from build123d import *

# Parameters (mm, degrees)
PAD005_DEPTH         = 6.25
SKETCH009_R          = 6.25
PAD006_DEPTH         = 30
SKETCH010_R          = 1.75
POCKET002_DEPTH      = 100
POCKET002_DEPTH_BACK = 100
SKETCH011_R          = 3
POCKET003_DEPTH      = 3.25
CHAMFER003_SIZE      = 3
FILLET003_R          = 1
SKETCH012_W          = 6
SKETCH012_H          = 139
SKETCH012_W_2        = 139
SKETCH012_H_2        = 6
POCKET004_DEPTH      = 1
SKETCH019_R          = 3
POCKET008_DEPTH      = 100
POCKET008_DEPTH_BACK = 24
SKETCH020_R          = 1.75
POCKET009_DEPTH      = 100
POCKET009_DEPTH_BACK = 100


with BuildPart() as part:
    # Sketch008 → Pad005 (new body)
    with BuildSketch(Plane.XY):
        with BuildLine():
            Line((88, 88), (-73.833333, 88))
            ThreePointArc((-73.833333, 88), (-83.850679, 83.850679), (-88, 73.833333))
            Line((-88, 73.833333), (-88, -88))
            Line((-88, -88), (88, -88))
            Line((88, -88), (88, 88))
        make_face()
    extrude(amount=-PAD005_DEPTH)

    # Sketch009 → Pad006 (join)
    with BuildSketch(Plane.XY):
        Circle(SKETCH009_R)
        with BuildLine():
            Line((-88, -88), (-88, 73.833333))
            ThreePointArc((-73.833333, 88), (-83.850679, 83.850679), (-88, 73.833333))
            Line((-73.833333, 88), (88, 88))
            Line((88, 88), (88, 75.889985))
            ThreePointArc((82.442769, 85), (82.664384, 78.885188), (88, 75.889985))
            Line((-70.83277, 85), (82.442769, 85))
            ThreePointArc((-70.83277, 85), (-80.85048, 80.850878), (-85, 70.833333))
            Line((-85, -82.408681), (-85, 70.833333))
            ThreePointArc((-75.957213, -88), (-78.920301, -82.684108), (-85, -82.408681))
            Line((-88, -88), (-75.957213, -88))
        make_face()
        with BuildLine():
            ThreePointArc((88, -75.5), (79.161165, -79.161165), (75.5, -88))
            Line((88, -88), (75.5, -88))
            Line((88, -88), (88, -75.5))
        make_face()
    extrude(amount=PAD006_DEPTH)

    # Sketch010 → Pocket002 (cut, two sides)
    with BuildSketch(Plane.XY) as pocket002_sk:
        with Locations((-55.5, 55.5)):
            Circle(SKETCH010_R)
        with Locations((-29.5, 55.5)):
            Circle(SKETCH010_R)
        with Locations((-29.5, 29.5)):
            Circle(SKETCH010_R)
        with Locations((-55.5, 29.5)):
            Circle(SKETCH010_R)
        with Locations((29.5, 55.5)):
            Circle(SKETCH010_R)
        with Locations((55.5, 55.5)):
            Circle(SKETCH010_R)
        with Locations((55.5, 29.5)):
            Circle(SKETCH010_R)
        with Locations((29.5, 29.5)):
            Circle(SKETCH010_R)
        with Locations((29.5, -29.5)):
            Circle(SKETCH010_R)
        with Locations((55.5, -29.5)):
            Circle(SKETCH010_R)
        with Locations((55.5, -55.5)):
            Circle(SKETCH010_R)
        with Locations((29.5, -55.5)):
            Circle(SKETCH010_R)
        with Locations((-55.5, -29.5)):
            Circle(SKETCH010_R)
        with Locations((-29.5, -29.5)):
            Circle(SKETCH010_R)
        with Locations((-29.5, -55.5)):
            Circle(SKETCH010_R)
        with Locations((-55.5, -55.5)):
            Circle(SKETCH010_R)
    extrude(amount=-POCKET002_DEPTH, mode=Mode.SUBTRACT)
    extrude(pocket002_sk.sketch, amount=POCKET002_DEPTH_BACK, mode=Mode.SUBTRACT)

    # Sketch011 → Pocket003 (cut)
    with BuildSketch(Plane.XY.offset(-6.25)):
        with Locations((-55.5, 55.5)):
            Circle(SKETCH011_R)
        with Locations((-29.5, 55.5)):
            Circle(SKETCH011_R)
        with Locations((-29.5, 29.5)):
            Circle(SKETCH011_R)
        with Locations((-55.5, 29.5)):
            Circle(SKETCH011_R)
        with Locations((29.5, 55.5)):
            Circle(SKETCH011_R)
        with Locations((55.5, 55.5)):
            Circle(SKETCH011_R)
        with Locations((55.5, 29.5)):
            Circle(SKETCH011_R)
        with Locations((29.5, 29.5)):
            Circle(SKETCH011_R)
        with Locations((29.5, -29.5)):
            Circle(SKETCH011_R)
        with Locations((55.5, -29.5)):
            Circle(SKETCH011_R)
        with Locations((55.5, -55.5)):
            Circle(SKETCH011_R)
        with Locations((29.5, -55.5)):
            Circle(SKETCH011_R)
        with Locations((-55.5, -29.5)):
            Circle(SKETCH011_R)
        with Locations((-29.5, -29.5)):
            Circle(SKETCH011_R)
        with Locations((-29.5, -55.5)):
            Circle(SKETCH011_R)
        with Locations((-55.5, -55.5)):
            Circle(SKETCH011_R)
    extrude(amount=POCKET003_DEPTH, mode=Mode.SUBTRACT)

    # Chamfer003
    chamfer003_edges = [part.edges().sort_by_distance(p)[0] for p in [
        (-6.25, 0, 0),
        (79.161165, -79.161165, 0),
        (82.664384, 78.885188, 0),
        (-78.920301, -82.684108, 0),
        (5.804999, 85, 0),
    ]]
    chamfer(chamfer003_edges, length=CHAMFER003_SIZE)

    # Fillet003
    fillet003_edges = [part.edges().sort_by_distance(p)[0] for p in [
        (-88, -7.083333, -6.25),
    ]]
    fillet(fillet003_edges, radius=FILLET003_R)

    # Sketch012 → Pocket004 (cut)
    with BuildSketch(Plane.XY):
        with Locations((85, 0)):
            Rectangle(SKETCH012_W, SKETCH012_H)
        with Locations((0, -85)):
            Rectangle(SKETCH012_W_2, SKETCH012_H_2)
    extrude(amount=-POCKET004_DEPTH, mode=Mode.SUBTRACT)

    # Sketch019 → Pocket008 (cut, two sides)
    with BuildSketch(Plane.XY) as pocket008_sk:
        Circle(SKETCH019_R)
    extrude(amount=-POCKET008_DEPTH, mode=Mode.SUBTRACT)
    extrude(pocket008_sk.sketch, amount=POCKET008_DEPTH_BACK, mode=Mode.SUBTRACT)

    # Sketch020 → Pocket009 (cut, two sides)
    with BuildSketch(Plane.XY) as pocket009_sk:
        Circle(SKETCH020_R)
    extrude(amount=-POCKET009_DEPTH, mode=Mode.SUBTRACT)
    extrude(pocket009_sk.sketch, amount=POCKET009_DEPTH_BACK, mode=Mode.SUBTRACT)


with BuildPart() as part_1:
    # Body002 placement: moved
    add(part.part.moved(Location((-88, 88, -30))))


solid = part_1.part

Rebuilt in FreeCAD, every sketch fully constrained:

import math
import FreeCAD as App
import Part
import Sketcher
from FreeCAD import Vector
Q = App.Units.Quantity


def edges_at(feature, points):
    """Names of the edges that pass closest to the given points."""
    edges = feature.Shape.Edges
    near = lambda p: min(range(len(edges)), key=lambda i: edges[i].distToShape(Part.Vertex(*p))[0])
    return sorted({f"Edge{near(p) + 1}" for p in points})


def add_polygon(sketch, points):
    """Adds a closed chain of lines whose ends are joined by coincident constraints."""
    first, n = sketch.GeometryCount, len(points)
    for a, b in zip(points, points[1:] + points[:1]):
        sketch.addGeometry(Part.LineSegment(App.Vector(*a, 0), App.Vector(*b, 0)), False)
    for i in range(n):
        sketch.addConstraint(Sketcher.Constraint("Coincident", first + i, 2, first + (i + 1) % n, 1))

doc = App.newDocument("Part")
body = doc.addObject("PartDesign::Body", "Body")

# Sketch on XY plane
sketch1 = body.newObject("Sketcher::SketchObject", "Sketch")
sketch1.AttachmentSupport = (doc.getObject("XY_Plane"), [""])
sketch1.MapMode = "FlatFace"
sketch1.addGeometry([
    Part.LineSegment(Vector(88, 88, 0), Vector(-74, 88, 0)),  # 0
    Part.ArcOfCircle(Part.Circle(Vector(-74, 74, 0), Vector(0, 0, 1), 14), math.radians(90), math.radians(180)),  # 1
    Part.LineSegment(Vector(-88, 74, 0), Vector(-88, -88, 0)),  # 2
    Part.LineSegment(Vector(-88, -88, 0), Vector(88, -88, 0)),  # 3
    Part.LineSegment(Vector(88, -88, 0), Vector(88, 88, 0)),  # 4
], False)
sketch1.addConstraint([
    Sketcher.Constraint("Tangent", 0, 2, 1, 1),
    Sketcher.Constraint("Tangent", 1, 2, 2, 1),
    Sketcher.Constraint("Coincident", 2, 2, 3, 1),
    Sketcher.Constraint("Coincident", 3, 2, 4, 1),
    Sketcher.Constraint("Coincident", 4, 2, 0, 1),
    Sketcher.Constraint("Horizontal", 0),
    Sketcher.Constraint("Vertical", 2),
    Sketcher.Constraint("Horizontal", 3),
    Sketcher.Constraint("Vertical", 4),
    Sketcher.Constraint("Symmetric", 2, 2, 4, 2, -1, 1),
    Sketcher.Constraint("Equal", 0, 2),
    Sketcher.Constraint("DistanceX", 3, 1, 3, 2, Q("176 mm")),
    Sketcher.Constraint("Radius", 1, Q("14.166668 mm")),
])
pad1 = body.newObject("PartDesign::Pad", "Pad")
pad1.Profile = sketch1
pad1.Length = 6.25
pad1.Reversed = True

# Sketch on XY plane
sketch2 = body.newObject("Sketcher::SketchObject", "Sketch001")
sketch2.AttachmentSupport = (doc.getObject("XY_Plane"), [""])
sketch2.MapMode = "FlatFace"
sketch2.addGeometry([
    Part.Circle(Vector(0, 0, 0), Vector(0, 0, 1), 6),  # 0
    Part.LineSegment(Vector(-88, 74, 0), Vector(-88, -88, 0)),  # 1
    Part.LineSegment(Vector(-88, -88, 0), Vector(-76, -88, 0)),  # 2
    Part.ArcOfCircle(Part.Circle(Vector(-82, -88, 0), Vector(0, 0, 1), 6), math.radians(0), math.radians(117)),  # 3
    Part.LineSegment(Vector(-85, -82, 0), Vector(-85, 71, 0)),  # 4
    Part.ArcOfCircle(Part.Circle(Vector(-71, 71, 0), Vector(0, 0, 1), 14), math.radians(90), math.radians(180)),  # 5
    Part.LineSegment(Vector(-71, 85, 0), Vector(82, 85, 0)),  # 6
    Part.ArcOfCircle(Part.Circle(Vector(88, 82, 0), Vector(0, 0, 1), 6), math.radians(153), math.radians(270)),  # 7
    Part.LineSegment(Vector(88, 76, 0), Vector(88, 88, 0)),  # 8
    Part.LineSegment(Vector(88, 88, 0), Vector(-74, 88, 0)),  # 9
    Part.ArcOfCircle(Part.Circle(Vector(-74, 74, 0), Vector(0, 0, 1), 14), math.radians(90), math.radians(180)),  # 10
    Part.ArcOfCircle(Part.Circle(Vector(88, -88, 0), Vector(0, 0, 1), 12), math.radians(90), math.radians(180)),  # 11
    Part.LineSegment(Vector(76, -88, 0), Vector(88, -88, 0)),  # 12
    Part.LineSegment(Vector(88, -88, 0), Vector(88, -76, 0)),  # 13
], False)
sketch2.addConstraint([
    Sketcher.Constraint("Coincident", 1, 2, 2, 1),
    Sketcher.Constraint("Coincident", 2, 2, 3, 1),
    Sketcher.Constraint("Coincident", 3, 2, 4, 1),
    Sketcher.Constraint("Tangent", 4, 2, 5, 2),
    Sketcher.Constraint("Coincident", 5, 1, 6, 1),
    Sketcher.Constraint("Coincident", 6, 2, 7, 1),
    Sketcher.Constraint("Coincident", 7, 2, 8, 1),
    Sketcher.Constraint("Coincident", 8, 2, 9, 1),
    Sketcher.Constraint("Tangent", 9, 2, 10, 1),
    Sketcher.Constraint("Tangent", 10, 2, 1, 1),
    Sketcher.Constraint("Coincident", 11, 2, 12, 1),
    Sketcher.Constraint("Coincident", 12, 2, 13, 1),
    Sketcher.Constraint("Coincident", 13, 2, 11, 1),
    Sketcher.Constraint("Vertical", 1),
    Sketcher.Constraint("Horizontal", 2),
    Sketcher.Constraint("Vertical", 4),
    Sketcher.Constraint("Horizontal", 6),
    Sketcher.Constraint("Vertical", 8),
    Sketcher.Constraint("Horizontal", 9),
    Sketcher.Constraint("Horizontal", 12),
    Sketcher.Constraint("Vertical", 13),
    Sketcher.Constraint("Coincident", 0, 3, -1, 1),
    Sketcher.Constraint("Coincident", 12, 2, 11, 3),
    Sketcher.Constraint("Equal", 0, 3),
    Sketcher.Constraint("Equal", 3, 7),
    Sketcher.Constraint("Equal", 5, 10),
    Sketcher.Constraint("Symmetric", 1, 2, 8, 2, -1, 1),
    Sketcher.Constraint("Symmetric", 1, 2, 12, 2, -2),
    Sketcher.Constraint("Horizontal", 3, 3, 11, 3),
    Sketcher.Constraint("Vertical", 7, 3, 11, 3),
    Sketcher.Constraint("Equal", 9, 1),
    Sketcher.Constraint("Diameter", 0, Q("12.5 mm")),
    Sketcher.Constraint("Radius", 11, Q("12.499999 mm")),
    Sketcher.Constraint("DistanceY", 3, 3, -1, 1, Q("88.000001 mm")),
    Sketcher.Constraint("DistanceX", 3, 2, -1, 1, Q("85 mm")),
    Sketcher.Constraint("DistanceY", -1, 1, 5, 1, Q("85 mm")),
    Sketcher.Constraint("Radius", 5, Q("14.166668 mm")),
    Sketcher.Constraint("DistanceX", 6, 1, 6, 2, Q("153.275539 mm")),
    Sketcher.Constraint("DistanceX", 5, 3, 6, 2, Q("153.276101 mm")),
    Sketcher.Constraint("DistanceX", 2, 1, 2, 2, Q("12.042787 mm")),
])
pad2 = body.newObject("PartDesign::Pad", "Pad001")
pad2.Profile = sketch2
pad2.Length = 30

# Sketch on XY plane
sketch3 = body.newObject("Sketcher::SketchObject", "Sketch002")
sketch3.AttachmentSupport = (doc.getObject("XY_Plane"), [""])
sketch3.MapMode = "FlatFace"
sketch3.addGeometry([
    Part.Circle(Vector(-55.5, 55.5, 0), Vector(0, 0, 1), 1.8),  # 0
    Part.Circle(Vector(-29.5, 55.5, 0), Vector(0, 0, 1), 1.8),  # 1
    Part.Circle(Vector(-29.5, 29.5, 0), Vector(0, 0, 1), 1.8),  # 2
    Part.Circle(Vector(-55.5, 29.5, 0), Vector(0, 0, 1), 1.8),  # 3
    Part.Circle(Vector(29.5, 55.5, 0), Vector(0, 0, 1), 1.8),  # 4
    Part.Circle(Vector(55.5, 55.5, 0), Vector(0, 0, 1), 1.8),  # 5
    Part.Circle(Vector(55.5, 29.5, 0), Vector(0, 0, 1), 1.8),  # 6
    Part.Circle(Vector(29.5, 29.5, 0), Vector(0, 0, 1), 1.8),  # 7
    Part.Circle(Vector(29.5, -29.5, 0), Vector(0, 0, 1), 1.8),  # 8
    Part.Circle(Vector(55.5, -29.5, 0), Vector(0, 0, 1), 1.8),  # 9
    Part.Circle(Vector(55.5, -55.5, 0), Vector(0, 0, 1), 1.8),  # 10
    Part.Circle(Vector(29.5, -55.5, 0), Vector(0, 0, 1), 1.8),  # 11
    Part.Circle(Vector(-55.5, -29.5, 0), Vector(0, 0, 1), 1.8),  # 12
    Part.Circle(Vector(-29.5, -29.5, 0), Vector(0, 0, 1), 1.8),  # 13
    Part.Circle(Vector(-29.5, -55.5, 0), Vector(0, 0, 1), 1.8),  # 14
    Part.Circle(Vector(-55.5, -55.5, 0), Vector(0, 0, 1), 1.8),  # 15
], False)
sketch3.addConstraint([
    Sketcher.Constraint("Equal", 0, 1),
    Sketcher.Constraint("Equal", 1, 2),
    Sketcher.Constraint("Equal", 2, 3),
    Sketcher.Constraint("Equal", 3, 4),
    Sketcher.Constraint("Equal", 4, 5),
    Sketcher.Constraint("Equal", 5, 6),
    Sketcher.Constraint("Equal", 6, 7),
    Sketcher.Constraint("Equal", 7, 8),
    Sketcher.Constraint("Equal", 8, 9),
    Sketcher.Constraint("Equal", 9, 10),
    Sketcher.Constraint("Equal", 10, 11),
    Sketcher.Constraint("Equal", 11, 12),
    Sketcher.Constraint("Equal", 12, 13),
    Sketcher.Constraint("Equal", 13, 14),
    Sketcher.Constraint("Equal", 14, 15),
    Sketcher.Constraint("Symmetric", 2, 3, 8, 3, -1, 1),
    Sketcher.Constraint("Symmetric", 3, 3, 9, 3, -1, 1),
    Sketcher.Constraint("Symmetric", 0, 3, 10, 3, -1, 1),
    Sketcher.Constraint("Symmetric", 1, 3, 11, 3, -1, 1),
    Sketcher.Constraint("Symmetric", 6, 3, 12, 3, -1, 1),
    Sketcher.Constraint("Symmetric", 7, 3, 13, 3, -1, 1),
    Sketcher.Constraint("Symmetric", 4, 3, 14, 3, -1, 1),
    Sketcher.Constraint("Symmetric", 5, 3, 15, 3, -1, 1),
    Sketcher.Constraint("Symmetric", 1, 3, 4, 3, -2),
    Sketcher.Constraint("Symmetric", 0, 3, 5, 3, -2),
    Sketcher.Constraint("Symmetric", 3, 3, 6, 3, -2),
    Sketcher.Constraint("Symmetric", 2, 3, 7, 3, -2),
    Sketcher.Constraint("Horizontal", 0, 3, 1, 3),
    Sketcher.Constraint("Horizontal", 2, 3, 3, 3),
    Sketcher.Constraint("Vertical", 1, 3, 2, 3),
    Sketcher.Constraint("Vertical", 0, 3, 3, 3),
    Sketcher.Constraint("Diameter", 0, Q("3.5 mm")),
    Sketcher.Constraint("DistanceX", 0, 3, 1, 3, Q("26 mm")),
    Sketcher.Constraint("DistanceY", 2, 3, 1, 3, Q("26 mm")),
    Sketcher.Constraint("DistanceX", 1, 3, 4, 3, Q("59 mm")),
    Sketcher.Constraint("DistanceY", 8, 3, 7, 3, Q("59 mm")),
])
pocket1 = body.newObject("PartDesign::Pocket", "Pocket")
pocket1.Profile = sketch3
pocket1.Type = "ThroughAll"
pocket1.Midplane = True

# Sketch on XY plane
sketch4 = body.newObject("Sketcher::SketchObject", "Sketch003")
sketch4.AttachmentSupport = (doc.getObject("XY_Plane"), [""])
sketch4.MapMode = "FlatFace"
sketch4.AttachmentOffset = App.Placement(Vector(0, 0, -6.25), App.Rotation())
sketch4.addGeometry([
    Part.Circle(Vector(-55.5, 55.5, 0), Vector(0, 0, 1), 3),  # 0
    Part.Circle(Vector(-29.5, 55.5, 0), Vector(0, 0, 1), 3),  # 1
    Part.Circle(Vector(-29.5, 29.5, 0), Vector(0, 0, 1), 3),  # 2
    Part.Circle(Vector(-55.5, 29.5, 0), Vector(0, 0, 1), 3),  # 3
    Part.Circle(Vector(29.5, 55.5, 0), Vector(0, 0, 1), 3),  # 4
    Part.Circle(Vector(55.5, 55.5, 0), Vector(0, 0, 1), 3),  # 5
    Part.Circle(Vector(55.5, 29.5, 0), Vector(0, 0, 1), 3),  # 6
    Part.Circle(Vector(29.5, 29.5, 0), Vector(0, 0, 1), 3),  # 7
    Part.Circle(Vector(29.5, -29.5, 0), Vector(0, 0, 1), 3),  # 8
    Part.Circle(Vector(55.5, -29.5, 0), Vector(0, 0, 1), 3),  # 9
    Part.Circle(Vector(55.5, -55.5, 0), Vector(0, 0, 1), 3),  # 10
    Part.Circle(Vector(29.5, -55.5, 0), Vector(0, 0, 1), 3),  # 11
    Part.Circle(Vector(-55.5, -29.5, 0), Vector(0, 0, 1), 3),  # 12
    Part.Circle(Vector(-29.5, -29.5, 0), Vector(0, 0, 1), 3),  # 13
    Part.Circle(Vector(-29.5, -55.5, 0), Vector(0, 0, 1), 3),  # 14
    Part.Circle(Vector(-55.5, -55.5, 0), Vector(0, 0, 1), 3),  # 15
], False)
sketch4.addConstraint([
    Sketcher.Constraint("Equal", 0, 1),
    Sketcher.Constraint("Equal", 1, 2),
    Sketcher.Constraint("Equal", 2, 3),
    Sketcher.Constraint("Equal", 3, 4),
    Sketcher.Constraint("Equal", 4, 5),
    Sketcher.Constraint("Equal", 5, 6),
    Sketcher.Constraint("Equal", 6, 7),
    Sketcher.Constraint("Equal", 7, 8),
    Sketcher.Constraint("Equal", 8, 9),
    Sketcher.Constraint("Equal", 9, 10),
    Sketcher.Constraint("Equal", 10, 11),
    Sketcher.Constraint("Equal", 11, 12),
    Sketcher.Constraint("Equal", 12, 13),
    Sketcher.Constraint("Equal", 13, 14),
    Sketcher.Constraint("Equal", 14, 15),
    Sketcher.Constraint("Symmetric", 2, 3, 8, 3, -1, 1),
    Sketcher.Constraint("Symmetric", 3, 3, 9, 3, -1, 1),
    Sketcher.Constraint("Symmetric", 0, 3, 10, 3, -1, 1),
    Sketcher.Constraint("Symmetric", 1, 3, 11, 3, -1, 1),
    Sketcher.Constraint("Symmetric", 6, 3, 12, 3, -1, 1),
    Sketcher.Constraint("Symmetric", 7, 3, 13, 3, -1, 1),
    Sketcher.Constraint("Symmetric", 4, 3, 14, 3, -1, 1),
    Sketcher.Constraint("Symmetric", 5, 3, 15, 3, -1, 1),
    Sketcher.Constraint("Symmetric", 1, 3, 4, 3, -2),
    Sketcher.Constraint("Symmetric", 0, 3, 5, 3, -2),
    Sketcher.Constraint("Symmetric", 3, 3, 6, 3, -2),
    Sketcher.Constraint("Symmetric", 2, 3, 7, 3, -2),
    Sketcher.Constraint("Horizontal", 0, 3, 1, 3),
    Sketcher.Constraint("Horizontal", 2, 3, 3, 3),
    Sketcher.Constraint("Vertical", 1, 3, 2, 3),
    Sketcher.Constraint("Vertical", 0, 3, 3, 3),
    Sketcher.Constraint("Diameter", 0, Q("6 mm")),
    Sketcher.Constraint("DistanceX", 0, 3, 1, 3, Q("26 mm")),
    Sketcher.Constraint("DistanceY", 2, 3, 1, 3, Q("26 mm")),
    Sketcher.Constraint("DistanceX", 1, 3, 4, 3, Q("59 mm")),
    Sketcher.Constraint("DistanceY", 8, 3, 7, 3, Q("59 mm")),
])
pocket2 = body.newObject("PartDesign::Pocket", "Pocket001")
pocket2.Profile = sketch4
pocket2.Length = 3.25
pocket2.Reversed = True
doc.recompute()

chamfer = body.newObject("PartDesign::Chamfer", "Chamfer")
chamfer.Base = (pocket2, edges_at(pocket2, [
    (-6.25, 0, 0),
    (79.161, -79.161, 0),
    (82.664, 78.885, 0),
    (-78.92, -82.684, 0),
    (5.805, 85, 0),
]))
chamfer.Size = 3
doc.recompute()

fillet = body.newObject("PartDesign::Fillet", "Fillet")
fillet.Base = (chamfer, edges_at(chamfer, [(-88, -7.083, -6.25)]))
fillet.Radius = 1

# Sketch on XY plane
sketch5 = body.newObject("Sketcher::SketchObject", "Sketch004")
sketch5.AttachmentSupport = (doc.getObject("XY_Plane"), [""])
sketch5.MapMode = "FlatFace"
add_polygon(sketch5, [(82, 70), (82, -70), (88, -70), (88, 70)])  # lines 0-3
add_polygon(sketch5, [(-70, -82), (-70, -88), (70, -88), (70, -82)])  # lines 4-7
sketch5.addConstraint([
    Sketcher.Constraint("Vertical", 0),
    Sketcher.Constraint("Horizontal", 1),
    Sketcher.Constraint("Vertical", 2),
    Sketcher.Constraint("Horizontal", 3),
    Sketcher.Constraint("Vertical", 4),
    Sketcher.Constraint("Horizontal", 5),
    Sketcher.Constraint("Vertical", 6),
    Sketcher.Constraint("Horizontal", 7),
    Sketcher.Constraint("Equal", 7, 0),
    Sketcher.Constraint("Equal", 3, 4),
    Sketcher.Constraint("DistanceX", 1, 1, 1, 2, Q("6 mm")),
    Sketcher.Constraint("DistanceX", 5, 1, 5, 2, Q("139 mm")),
    Sketcher.Constraint("DistanceX", -1, 1, 0, 2, Q("82 mm")),
    Sketcher.Constraint("DistanceY", 4, 2, -1, 1, Q("88 mm")),
    Sketcher.Constraint("DistanceY", 0, 2, -1, 1, Q("69.5 mm")),
    Sketcher.Constraint("DistanceX", 4, 2, -1, 1, Q("69.5 mm")),
])
pocket3 = body.newObject("PartDesign::Pocket", "Pocket002")
pocket3.Profile = sketch5
pocket3.Length = 1

# Sketch on XY plane
sketch6 = body.newObject("Sketcher::SketchObject", "Sketch005")
sketch6.AttachmentSupport = (doc.getObject("XY_Plane"), [""])
sketch6.MapMode = "FlatFace"
sketch6.addGeometry(Part.Circle(Vector(0, 0, 0), Vector(0, 0, 1), 3), False)
sketch6.addConstraint([
    Sketcher.Constraint("Coincident", 0, 3, -1, 1),
    Sketcher.Constraint("Diameter", 0, Q("6 mm")),
])
pocket4 = body.newObject("PartDesign::Pocket", "Pocket003")
pocket4.Profile = sketch6
pocket4.Type = "TwoLengths"
pocket4.Length = 100
pocket4.Length2 = 24

# Sketch on XY plane
sketch7 = body.newObject("Sketcher::SketchObject", "Sketch006")
sketch7.AttachmentSupport = (doc.getObject("XY_Plane"), [""])
sketch7.MapMode = "FlatFace"
sketch7.addGeometry(Part.Circle(Vector(0, 0, 0), Vector(0, 0, 1), 1.8), False)
sketch7.addConstraint([
    Sketcher.Constraint("Coincident", 0, 3, -1, 1),
    Sketcher.Constraint("Diameter", 0, Q("3.5 mm")),
])
pocket5 = body.newObject("PartDesign::Pocket", "Pocket004")
pocket5.Profile = sketch7
pocket5.Type = "ThroughAll"
pocket5.Midplane = True
body2 = doc.addObject("PartDesign::Body", "Body001")
doc.recompute()

body.Placement = App.Placement(Vector(-88, 88, -30), App.Rotation(Vector(0, 0, 1), 0))
boolean = body2.newObject("PartDesign::Boolean", "Boolean")
boolean.Type = "Fuse"
boolean.addObjects([body])

doc.recompute()
